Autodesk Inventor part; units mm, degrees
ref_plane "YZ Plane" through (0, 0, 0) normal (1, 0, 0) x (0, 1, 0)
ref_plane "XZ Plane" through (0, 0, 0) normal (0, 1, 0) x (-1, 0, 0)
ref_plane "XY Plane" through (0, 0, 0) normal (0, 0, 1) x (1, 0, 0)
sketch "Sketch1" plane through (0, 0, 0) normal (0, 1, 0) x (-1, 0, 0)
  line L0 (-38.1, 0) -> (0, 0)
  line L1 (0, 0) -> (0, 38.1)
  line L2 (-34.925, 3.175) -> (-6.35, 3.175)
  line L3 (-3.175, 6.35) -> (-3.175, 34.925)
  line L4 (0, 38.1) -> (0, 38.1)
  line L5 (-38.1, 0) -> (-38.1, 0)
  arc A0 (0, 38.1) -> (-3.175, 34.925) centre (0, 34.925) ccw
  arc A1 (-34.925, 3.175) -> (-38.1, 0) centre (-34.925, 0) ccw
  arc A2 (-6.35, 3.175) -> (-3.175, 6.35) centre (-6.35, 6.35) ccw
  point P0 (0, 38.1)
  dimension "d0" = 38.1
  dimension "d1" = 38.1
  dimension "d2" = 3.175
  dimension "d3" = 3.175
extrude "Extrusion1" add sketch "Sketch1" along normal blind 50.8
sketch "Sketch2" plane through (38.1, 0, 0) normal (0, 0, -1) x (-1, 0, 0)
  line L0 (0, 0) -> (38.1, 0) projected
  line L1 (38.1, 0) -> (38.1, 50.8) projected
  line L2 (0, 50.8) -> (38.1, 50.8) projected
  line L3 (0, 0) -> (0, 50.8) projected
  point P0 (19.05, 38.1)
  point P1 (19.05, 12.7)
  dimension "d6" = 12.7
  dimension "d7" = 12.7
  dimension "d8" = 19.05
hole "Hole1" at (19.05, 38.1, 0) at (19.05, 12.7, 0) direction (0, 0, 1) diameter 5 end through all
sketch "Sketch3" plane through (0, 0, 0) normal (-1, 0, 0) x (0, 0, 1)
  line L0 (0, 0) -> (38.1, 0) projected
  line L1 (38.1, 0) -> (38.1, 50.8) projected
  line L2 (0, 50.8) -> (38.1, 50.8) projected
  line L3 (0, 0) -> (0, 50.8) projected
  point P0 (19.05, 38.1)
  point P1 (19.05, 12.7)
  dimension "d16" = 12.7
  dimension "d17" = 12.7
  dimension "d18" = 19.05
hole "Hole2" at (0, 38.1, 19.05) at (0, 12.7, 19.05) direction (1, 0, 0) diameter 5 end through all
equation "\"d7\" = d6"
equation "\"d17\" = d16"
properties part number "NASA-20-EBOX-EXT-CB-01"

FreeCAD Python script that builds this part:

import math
import FreeCAD as App
import Part
import Sketcher

V = App.Vector
Q = App.Units.Quantity

doc = App.newDocument("Part")
params = doc.addObject("Spreadsheet::Sheet", "Params")
for row, (alias, value) in enumerate([
    ("sketch1_width", "1.5 in"),
    ("sketch1_radius", "0.125 in"),
    ("pad1_length", "2 in"),
    ("hole_diameter", "5 mm"),
    ("hole2_diameter", "5 mm"),
], start=1):
    params.set(f"A{row}", alias)
    params.set(f"B{row}", "=" + value)
    params.setAlias(f"B{row}", alias)

body = doc.addObject("PartDesign::Body", "Body")

sketch1 = body.newObject("Sketcher::SketchObject", "Sketch")
sketch1.AttachmentSupport = (doc.getObject("XZ_Plane"), [""])
sketch1.MapMode = "FlatFace"
sketch1.addGeometry([
    Part.ArcOfCircle(Part.Circle(V(34.9, 0, 0), V(0, 0, 1), 3.2), math.radians(0), math.radians(90)),
    Part.LineSegment(V(38.1, 0, 0), V(0, 0, 0)),
    Part.LineSegment(V(0, 0, 0), V(0, 38.1, 0)),
    Part.ArcOfCircle(Part.Circle(V(0, 34.9, 0), V(0, 0, 1), 3.2), math.radians(0), math.radians(90)),
    Part.LineSegment(V(3.2, 34.9, 0), V(3.2, 6.3, 0)),
    Part.ArcOfCircle(Part.Circle(V(6.3, 6.3, 0), V(0, 0, 1), 3.2), math.radians(180), math.radians(270)),
    Part.LineSegment(V(6.3, 3.2, 0), V(34.9, 3.2, 0)),
], False)
sketch1.addConstraint([
    Sketcher.Constraint("Coincident", 0, 1, 1, 1),
    Sketcher.Constraint("Coincident", 1, 2, 2, 1),
    Sketcher.Constraint("Coincident", 2, 2, 3, 2),
    Sketcher.Constraint("Tangent", 3, 1, 4, 1),
    Sketcher.Constraint("Tangent", 4, 2, 5, 1),
    Sketcher.Constraint("Tangent", 5, 2, 6, 1),
    Sketcher.Constraint("Tangent", 6, 2, 0, 2),
    Sketcher.Constraint("Horizontal", 1),
    Sketcher.Constraint("Vertical", 2),
    Sketcher.Constraint("Vertical", 4),
    Sketcher.Constraint("Horizontal", 6),
    Sketcher.Constraint("Coincident", 1, 2, -1, 1),
    Sketcher.Constraint("Equal", 0, 3),
    Sketcher.Constraint("Equal", 3, 5),
    Sketcher.Constraint("PointOnObject", 0, 3, -1),
    Sketcher.Constraint("PointOnObject", 3, 3, -2),
    Sketcher.Constraint("Equal", 1, 2),
    Sketcher.Constraint("DistanceX", 1, 2, 1, 1, Q("1.5 in")),
    Sketcher.Constraint("Radius", 0, Q("0.125 in")),
])
sketch1.setExpression("Constraints[17]", "Params.sketch1_width")
sketch1.setExpression("Constraints[18]", "Params.sketch1_radius")
pad1 = body.newObject("PartDesign::Pad", "Pad")
pad1.Profile = sketch1
pad1.setExpression("Length", "Params.pad1_length")
pad1.Reversed = True

sketch2 = body.newObject("Sketcher::SketchObject", "Sketch001")
sketch2.AttachmentSupport = (doc.getObject("XY_Plane"), [""])
sketch2.MapMode = "FlatFace"
sketch2.addGeometry([
    Part.Circle(V(19.1, 38.1, 0), V(0, 0, 1), 2.5),
    Part.Circle(V(19.1, 12.7, 0), V(0, 0, 1), 2.5),
], False)
sketch2.addConstraint([
    Sketcher.Constraint("Equal", 0, 1),
    Sketcher.Constraint("Vertical", 0, 3, 1, 3),
    Sketcher.Constraint("DistanceY", 1, 3, 0, 3, Q("1 in")),
    Sketcher.Constraint("DistanceY", -1, 1, 0, 3, Q("1.5 in")),
    Sketcher.Constraint("Diameter", 0, Q("5 mm")),
    Sketcher.Constraint("DistanceX", -1, 1, 0, 3, Q("0.75 in")),
])
doc.recompute()
hole = body.newObject("PartDesign::Hole", "Hole")
hole.Profile = sketch2
hole.ThreadType = "None"
hole.setExpression("Diameter", "Params.hole_diameter")
hole.DepthType = "ThroughAll"
hole.Reversed = True

sketch3 = body.newObject("Sketcher::SketchObject", "Sketch002")
sketch3.AttachmentSupport = (doc.getObject("YZ_Plane"), [""])
sketch3.MapMode = "FlatFace"
sketch3.addGeometry([
    Part.Circle(V(38.1, 19.1, 0), V(0, 0, 1), 2.5),
    Part.Circle(V(12.7, 19.1, 0), V(0, 0, 1), 2.5),
], False)
sketch3.addConstraint([
    Sketcher.Constraint("Equal", 0, 1),
    Sketcher.Constraint("Horizontal", 0, 3, 1, 3),
    Sketcher.Constraint("DistanceX", 1, 3, 0, 3, Q("1 in")),
    Sketcher.Constraint("DistanceX", -1, 1, 0, 3, Q("1.5 in")),
    Sketcher.Constraint("Diameter", 0, Q("5 mm")),
    Sketcher.Constraint("DistanceY", -1, 1, 0, 3, Q("0.75 in")),
])
doc.recompute()
hole2 = body.newObject("PartDesign::Hole", "Hole001")
hole2.Profile = sketch3
hole2.ThreadType = "None"
hole2.setExpression("Diameter", "Params.hole2_diameter")
hole2.DepthType = "ThroughAll"
hole2.Reversed = True

doc.recompute()
